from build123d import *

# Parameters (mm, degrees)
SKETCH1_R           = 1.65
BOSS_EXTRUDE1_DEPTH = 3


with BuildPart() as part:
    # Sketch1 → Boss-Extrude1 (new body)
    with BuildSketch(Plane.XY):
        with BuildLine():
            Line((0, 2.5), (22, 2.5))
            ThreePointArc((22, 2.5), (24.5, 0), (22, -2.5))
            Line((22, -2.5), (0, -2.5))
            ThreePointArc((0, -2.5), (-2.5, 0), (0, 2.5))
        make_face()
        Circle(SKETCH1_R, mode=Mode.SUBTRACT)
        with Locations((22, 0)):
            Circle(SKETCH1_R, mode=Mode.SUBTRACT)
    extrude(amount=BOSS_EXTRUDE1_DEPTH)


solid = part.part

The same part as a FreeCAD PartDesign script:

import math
import FreeCAD as App
import Part
import Sketcher

V = App.Vector
Q = App.Units.Quantity

doc = App.newDocument("Part")
body = doc.addObject("PartDesign::Body", "Body")

sketch1 = doc.addObject("Sketcher::SketchObject", "Sketch")
body.addObject(sketch1)
sketch1.AttachmentSupport = (doc.XY_Plane, [""])
sketch1.MapMode = "FlatFace"
sketch1.addGeometry([
    Part.LineSegment(V(22, 2.5, 0), V(0, 2.5, 0)),
    Part.ArcOfCircle(Part.Circle(V(0, 0, 0), V(0, 0, 1), 2.5), math.radians(90), math.radians(270)),
    Part.LineSegment(V(0, -2.5, 0), V(22, -2.5, 0)),
    Part.ArcOfCircle(Part.Circle(V(22, 0, 0), V(0, 0, 1), 2.5), math.radians(-90), math.radians(90)),
    Part.Circle(V(22, 0, 0), V(0, 0, 1), 1.6),
    Part.Circle(V(0, 0, 0), V(0, 0, 1), 1.6),
], False)
sketch1.addConstraint([
    Sketcher.Constraint("Tangent", 0, 2, 1, 1),
    Sketcher.Constraint("Tangent", 1, 2, 2, 1),
    Sketcher.Constraint("Tangent", 2, 2, 3, 1),
    Sketcher.Constraint("Tangent", 3, 2, 0, 1),
    Sketcher.Constraint("Horizontal", 0),
    Sketcher.Constraint("Horizontal", 2),
    Sketcher.Constraint("Coincident", 1, 3, -1, 1),
    Sketcher.Constraint("Coincident", 5, 3, -1, 1),
    Sketcher.Constraint("Coincident", 4, 3, 3, 3),
    Sketcher.Constraint("Equal", 4, 5),
    Sketcher.Constraint("Diameter", 4, Q("3.3 mm")),
    Sketcher.Constraint("Radius", 1, Q("2.5 mm")),
    Sketcher.Constraint("DistanceX", 0, 2, 0, 1, Q("22 mm")),
])
pad1 = doc.addObject("PartDesign::Pad", "Pad")
body.addObject(pad1)
pad1.Profile = sketch1
pad1.Length = 3

doc.recompute()
